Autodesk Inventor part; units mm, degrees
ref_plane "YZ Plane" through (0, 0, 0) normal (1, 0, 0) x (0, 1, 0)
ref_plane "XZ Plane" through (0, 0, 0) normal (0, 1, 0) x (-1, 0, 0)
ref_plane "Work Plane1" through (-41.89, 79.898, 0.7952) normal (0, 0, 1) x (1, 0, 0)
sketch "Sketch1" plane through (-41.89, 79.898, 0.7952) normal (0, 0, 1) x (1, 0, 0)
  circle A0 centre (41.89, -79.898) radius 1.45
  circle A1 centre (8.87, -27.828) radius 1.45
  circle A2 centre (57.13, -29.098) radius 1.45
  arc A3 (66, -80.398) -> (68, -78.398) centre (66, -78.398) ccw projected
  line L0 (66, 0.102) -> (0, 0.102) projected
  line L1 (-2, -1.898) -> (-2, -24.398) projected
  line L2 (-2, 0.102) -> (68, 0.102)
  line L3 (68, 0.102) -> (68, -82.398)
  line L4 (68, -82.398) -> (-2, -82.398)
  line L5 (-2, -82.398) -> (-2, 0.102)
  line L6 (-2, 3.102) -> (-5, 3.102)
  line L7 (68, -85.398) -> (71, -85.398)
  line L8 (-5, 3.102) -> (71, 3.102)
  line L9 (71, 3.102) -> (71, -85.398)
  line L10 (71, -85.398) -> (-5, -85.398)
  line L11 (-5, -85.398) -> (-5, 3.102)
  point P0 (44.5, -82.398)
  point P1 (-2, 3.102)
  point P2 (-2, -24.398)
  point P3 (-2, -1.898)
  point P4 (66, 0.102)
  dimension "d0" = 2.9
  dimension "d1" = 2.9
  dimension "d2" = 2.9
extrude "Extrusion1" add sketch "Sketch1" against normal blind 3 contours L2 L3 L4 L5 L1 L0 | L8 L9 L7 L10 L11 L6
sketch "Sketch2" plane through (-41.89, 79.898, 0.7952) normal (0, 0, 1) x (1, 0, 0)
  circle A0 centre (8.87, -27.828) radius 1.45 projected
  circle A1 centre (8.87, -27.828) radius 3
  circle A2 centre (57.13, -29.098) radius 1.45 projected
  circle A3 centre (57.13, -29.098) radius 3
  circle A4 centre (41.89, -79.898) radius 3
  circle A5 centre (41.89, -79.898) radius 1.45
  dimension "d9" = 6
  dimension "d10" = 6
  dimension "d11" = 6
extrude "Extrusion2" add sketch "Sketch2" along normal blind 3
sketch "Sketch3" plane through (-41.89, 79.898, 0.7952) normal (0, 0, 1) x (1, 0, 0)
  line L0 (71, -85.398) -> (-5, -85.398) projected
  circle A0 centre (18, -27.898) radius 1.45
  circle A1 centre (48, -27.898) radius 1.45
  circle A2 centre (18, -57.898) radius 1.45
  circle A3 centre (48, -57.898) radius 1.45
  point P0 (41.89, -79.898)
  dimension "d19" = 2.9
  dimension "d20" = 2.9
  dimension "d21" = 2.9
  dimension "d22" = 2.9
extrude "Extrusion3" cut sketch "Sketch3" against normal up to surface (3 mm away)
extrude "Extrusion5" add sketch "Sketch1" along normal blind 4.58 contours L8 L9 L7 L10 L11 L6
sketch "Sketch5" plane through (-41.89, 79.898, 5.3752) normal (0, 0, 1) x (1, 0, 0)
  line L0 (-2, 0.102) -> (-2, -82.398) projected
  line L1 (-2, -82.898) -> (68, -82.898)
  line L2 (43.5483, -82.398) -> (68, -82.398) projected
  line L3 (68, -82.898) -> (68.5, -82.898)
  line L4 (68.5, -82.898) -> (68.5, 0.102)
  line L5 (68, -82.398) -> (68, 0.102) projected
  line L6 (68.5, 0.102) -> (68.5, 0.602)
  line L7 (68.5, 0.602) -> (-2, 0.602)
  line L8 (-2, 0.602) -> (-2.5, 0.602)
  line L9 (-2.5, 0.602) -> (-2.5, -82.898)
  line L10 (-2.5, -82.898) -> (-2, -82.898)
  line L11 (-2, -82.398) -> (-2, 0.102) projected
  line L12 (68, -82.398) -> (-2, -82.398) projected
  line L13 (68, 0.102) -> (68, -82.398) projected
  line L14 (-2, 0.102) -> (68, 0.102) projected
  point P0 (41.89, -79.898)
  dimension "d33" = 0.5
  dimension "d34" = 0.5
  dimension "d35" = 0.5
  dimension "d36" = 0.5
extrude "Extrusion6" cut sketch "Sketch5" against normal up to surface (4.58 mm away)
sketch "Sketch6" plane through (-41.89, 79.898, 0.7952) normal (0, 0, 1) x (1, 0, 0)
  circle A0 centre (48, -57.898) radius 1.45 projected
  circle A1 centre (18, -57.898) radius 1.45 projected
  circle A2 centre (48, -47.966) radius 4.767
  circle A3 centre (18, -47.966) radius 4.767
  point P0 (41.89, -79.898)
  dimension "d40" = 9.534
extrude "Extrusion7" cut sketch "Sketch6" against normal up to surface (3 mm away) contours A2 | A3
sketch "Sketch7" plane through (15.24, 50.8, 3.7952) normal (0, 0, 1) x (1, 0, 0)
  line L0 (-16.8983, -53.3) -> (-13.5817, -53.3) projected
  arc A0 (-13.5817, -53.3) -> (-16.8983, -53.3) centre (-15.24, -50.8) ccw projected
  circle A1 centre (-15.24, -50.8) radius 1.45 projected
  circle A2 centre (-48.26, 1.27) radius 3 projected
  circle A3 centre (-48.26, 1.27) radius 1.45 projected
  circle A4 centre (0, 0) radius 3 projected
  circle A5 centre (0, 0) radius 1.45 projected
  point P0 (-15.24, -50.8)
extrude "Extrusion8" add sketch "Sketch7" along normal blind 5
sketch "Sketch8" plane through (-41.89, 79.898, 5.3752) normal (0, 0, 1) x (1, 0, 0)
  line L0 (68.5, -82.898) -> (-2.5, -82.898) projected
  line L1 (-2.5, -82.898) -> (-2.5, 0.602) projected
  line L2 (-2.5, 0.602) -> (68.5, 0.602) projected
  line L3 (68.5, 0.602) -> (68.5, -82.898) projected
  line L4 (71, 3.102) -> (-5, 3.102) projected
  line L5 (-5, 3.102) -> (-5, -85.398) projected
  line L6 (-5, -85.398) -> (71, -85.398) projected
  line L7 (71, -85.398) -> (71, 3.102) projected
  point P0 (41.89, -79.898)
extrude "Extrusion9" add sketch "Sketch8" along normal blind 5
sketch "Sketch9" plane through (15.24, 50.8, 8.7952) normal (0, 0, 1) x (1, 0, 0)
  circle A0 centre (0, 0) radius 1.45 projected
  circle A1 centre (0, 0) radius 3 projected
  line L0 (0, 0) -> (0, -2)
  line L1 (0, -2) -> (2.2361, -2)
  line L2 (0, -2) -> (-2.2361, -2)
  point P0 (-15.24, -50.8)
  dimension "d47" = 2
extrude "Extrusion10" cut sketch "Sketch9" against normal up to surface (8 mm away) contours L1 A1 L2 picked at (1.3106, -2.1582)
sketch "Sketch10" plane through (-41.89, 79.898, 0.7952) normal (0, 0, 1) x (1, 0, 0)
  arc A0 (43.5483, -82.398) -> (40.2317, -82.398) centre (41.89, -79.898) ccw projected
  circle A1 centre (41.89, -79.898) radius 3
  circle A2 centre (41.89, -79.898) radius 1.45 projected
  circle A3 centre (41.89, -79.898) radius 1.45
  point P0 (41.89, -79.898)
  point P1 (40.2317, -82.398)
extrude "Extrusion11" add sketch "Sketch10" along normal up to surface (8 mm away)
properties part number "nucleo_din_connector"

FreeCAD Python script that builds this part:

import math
import FreeCAD as App
import Part
import Sketcher
from FreeCAD import Vector
Q = App.Units.Quantity

doc = App.newDocument("Part")
body = doc.addObject("PartDesign::Body", "Body")

# Sketch on XY plane
sketch1 = body.newObject("Sketcher::SketchObject", "Sketch")
sketch1.AttachmentSupport = (doc.getObject("XY_Plane"), [""])
sketch1.MapMode = "FlatFace"
sketch1.AttachmentOffset = App.Placement(Vector(0, 0, 0.7952), App.Rotation())
sketch1.addGeometry(Part.LineSegment(Vector(29.1, 83, 0), Vector(-46.9, 83, 0)), False)
sketch1.addGeometry(Part.LineSegment(Vector(-46.9, 83, 0), Vector(-46.9, -5.5, 0)), False)
sketch1.addGeometry(Part.LineSegment(Vector(-46.9, -5.5, 0), Vector(29.1, -5.5, 0)), False)
sketch1.addGeometry(Part.LineSegment(Vector(29.1, -5.5, 0), Vector(29.1, 83, 0)), False)
sketch1.addGeometry(Part.Circle(Vector(0, 0, 0), Vector(0, 0, 1), 1.4), False)
sketch1.addGeometry(Part.Circle(Vector(-33, 52.1, 0), Vector(0, 0, 1), 1.4), False)
sketch1.addGeometry(Part.Circle(Vector(15.2, 50.8, 0), Vector(0, 0, 1), 1.4), False)
sketch1.addConstraint(Sketcher.Constraint("Coincident", 0, 2, 1, 1))
sketch1.addConstraint(Sketcher.Constraint("Coincident", 1, 2, 2, 1))
sketch1.addConstraint(Sketcher.Constraint("Coincident", 2, 2, 3, 1))
sketch1.addConstraint(Sketcher.Constraint("Coincident", 3, 2, 0, 1))
sketch1.addConstraint(Sketcher.Constraint("Horizontal", 0))
sketch1.addConstraint(Sketcher.Constraint("Vertical", 1))
sketch1.addConstraint(Sketcher.Constraint("Horizontal", 2))
sketch1.addConstraint(Sketcher.Constraint("Vertical", 3))
sketch1.addConstraint(Sketcher.Constraint("Coincident", 4, 3, -1, 1))
sketch1.addConstraint(Sketcher.Constraint("Equal", 4, 5))
sketch1.addConstraint(Sketcher.Constraint("Equal", 5, 6))
sketch1.addConstraint(Sketcher.Constraint("Diameter", 4, Q("2.9 mm")))
sketch1.addConstraint(Sketcher.Constraint("DistanceX", 0, 2, 0, 1, Q("76 mm")))
sketch1.addConstraint(Sketcher.Constraint("DistanceY", 1, 2, 1, 1, Q("88.5 mm")))
sketch1.addConstraint(Sketcher.Constraint("DistanceY", -1, 1, 0, 2, Q("83 mm")))
sketch1.addConstraint(Sketcher.Constraint("DistanceY", -1, 1, 6, 3, Q("50.8 mm")))
sketch1.addConstraint(Sketcher.Constraint("DistanceX", 5, 3, -1, 1, Q("33.02 mm")))
sketch1.addConstraint(Sketcher.Constraint("DistanceY", -1, 1, 5, 3, Q("52.07 mm")))
sketch1.addConstraint(Sketcher.Constraint("DistanceX", -1, 1, 6, 3, Q("15.24 mm")))
sketch1.addConstraint(Sketcher.Constraint("DistanceX", 0, 2, -1, 1, Q("46.89 mm")))
pad1 = body.newObject("PartDesign::Pad", "Pad")
pad1.Profile = sketch1
pad1.Length = 3
pad1.Reversed = True

# Sketch on XY plane
sketch2 = body.newObject("Sketcher::SketchObject", "Sketch001")
sketch2.AttachmentSupport = (doc.getObject("XY_Plane"), [""])
sketch2.MapMode = "FlatFace"
sketch2.AttachmentOffset = App.Placement(Vector(0, 0, 0.7952), App.Rotation())
sketch2.addGeometry(Part.Circle(Vector(-33, 52.1, 0), Vector(0, 0, 1), 3), False)
sketch2.addGeometry(Part.Circle(Vector(-33, 52.1, 0), Vector(0, 0, 1), 1.4), False)
sketch2.addGeometry(Part.Circle(Vector(15.2, 50.8, 0), Vector(0, 0, 1), 3), False)
sketch2.addGeometry(Part.Circle(Vector(15.2, 50.8, 0), Vector(0, 0, 1), 1.4), False)
sketch2.addGeometry(Part.Circle(Vector(0, 0, 0), Vector(0, 0, 1), 3), False)
sketch2.addGeometry(Part.Circle(Vector(0, 0, 0), Vector(0, 0, 1), 1.4), False)
sketch2.addConstraint(Sketcher.Constraint("Coincident", 4, 3, -1, 1))
sketch2.addConstraint(Sketcher.Constraint("Coincident", 5, 3, -1, 1))
sketch2.addConstraint(Sketcher.Constraint("Coincident", 1, 3, 0, 3))
sketch2.addConstraint(Sketcher.Constraint("Coincident", 3, 3, 2, 3))
sketch2.addConstraint(Sketcher.Constraint("Equal", 0, 2))
sketch2.addConstraint(Sketcher.Constraint("Equal", 1, 3))
sketch2.addConstraint(Sketcher.Constraint("Equal", 2, 4))
sketch2.addConstraint(Sketcher.Constraint("Equal", 3, 5))
sketch2.addConstraint(Sketcher.Constraint("Diameter", 0, Q("6 mm")))
sketch2.addConstraint(Sketcher.Constraint("Diameter", 1, Q("2.9 mm")))
sketch2.addConstraint(Sketcher.Constraint("DistanceY", -1, 1, 2, 3, Q("50.8 mm")))
sketch2.addConstraint(Sketcher.Constraint("DistanceX", 0, 3, -1, 1, Q("33.02 mm")))
sketch2.addConstraint(Sketcher.Constraint("DistanceY", -1, 1, 0, 3, Q("52.07 mm")))
sketch2.addConstraint(Sketcher.Constraint("DistanceX", -1, 1, 2, 3, Q("15.24 mm")))
pad2 = body.newObject("PartDesign::Pad", "Pad001")
pad2.Profile = sketch2
pad2.Length = 3

# Sketch on XY plane
sketch3 = body.newObject("Sketcher::SketchObject", "Sketch002")
sketch3.AttachmentSupport = (doc.getObject("XY_Plane"), [""])
sketch3.MapMode = "FlatFace"
sketch3.AttachmentOffset = App.Placement(Vector(0, 0, 0.7952), App.Rotation())
sketch3.addGeometry(Part.Circle(Vector(-23.9, 52, 0), Vector(0, 0, 1), 1.4), False)
sketch3.addGeometry(Part.Circle(Vector(6.1, 52, 0), Vector(0, 0, 1), 1.4), False)
sketch3.addGeometry(Part.Circle(Vector(-23.9, 22, 0), Vector(0, 0, 1), 1.4), False)
sketch3.addGeometry(Part.Circle(Vector(6.1, 22, 0), Vector(0, 0, 1), 1.4), False)
sketch3.addConstraint(Sketcher.Constraint("Equal", 0, 1))
sketch3.addConstraint(Sketcher.Constraint("Equal", 1, 2))
sketch3.addConstraint(Sketcher.Constraint("Equal", 2, 3))
sketch3.addConstraint(Sketcher.Constraint("Horizontal", 0, 3, 1, 3))
sketch3.addConstraint(Sketcher.Constraint("Horizontal", 2, 3, 3, 3))
sketch3.addConstraint(Sketcher.Constraint("Vertical", 0, 3, 2, 3))
sketch3.addConstraint(Sketcher.Constraint("Vertical", 1, 3, 3, 3))
sketch3.addConstraint(Sketcher.Constraint("Diameter", 0, Q("2.9 mm")))
sketch3.addConstraint(Sketcher.Constraint("DistanceY", -1, 1, 0, 3, Q("52 mm")))
sketch3.addConstraint(Sketcher.Constraint("DistanceY", -1, 1, 2, 3, Q("22 mm")))
sketch3.addConstraint(Sketcher.Constraint("DistanceX", 0, 3, 1, 3, Q("30 mm")))
sketch3.addConstraint(Sketcher.Constraint("DistanceX", 0, 3, -1, 1, Q("23.89 mm")))
pocket1 = body.newObject("PartDesign::Pocket", "Pocket")
pocket1.Profile = sketch3
pocket1.Length = 3

# Sketch on XY plane
sketch4 = body.newObject("Sketcher::SketchObject", "Sketch003")
sketch4.AttachmentSupport = (doc.getObject("XY_Plane"), [""])
sketch4.MapMode = "FlatFace"
sketch4.AttachmentOffset = App.Placement(Vector(0, 0, 0.7952), App.Rotation())
sketch4.addGeometry(Part.LineSegment(Vector(29, 83, 0), Vector(-47, 83, 0)), False)
sketch4.addGeometry(Part.LineSegment(Vector(-47, 83, 0), Vector(-47, -6, 0)), False)
sketch4.addGeometry(Part.LineSegment(Vector(-47, -6, 0), Vector(29, -6, 0)), False)
sketch4.addGeometry(Part.LineSegment(Vector(29, -6, 0), Vector(29, 83, 0)), False)
sketch4.addGeometry(Part.LineSegment(Vector(-44, 80, 0), Vector(26, 80, 0)), False)
sketch4.addGeometry(Part.LineSegment(Vector(26, 80, 0), Vector(26, -2, 0)), False)
sketch4.addGeometry(Part.LineSegment(Vector(26, -2, 0), Vector(-44, -2, 0)), False)
sketch4.addGeometry(Part.LineSegment(Vector(-44, -2, 0), Vector(-44, 80, 0)), False)
sketch4.addConstraint(Sketcher.Constraint("Coincident", 0, 2, 1, 1))
sketch4.addConstraint(Sketcher.Constraint("Coincident", 1, 2, 2, 1))
sketch4.addConstraint(Sketcher.Constraint("Coincident", 2, 2, 3, 1))
sketch4.addConstraint(Sketcher.Constraint("Coincident", 3, 2, 0, 1))
sketch4.addConstraint(Sketcher.Constraint("Coincident", 4, 2, 5, 1))
sketch4.addConstraint(Sketcher.Constraint("Coincident", 5, 2, 6, 1))
sketch4.addConstraint(Sketcher.Constraint("Coincident", 6, 2, 7, 1))
sketch4.addConstraint(Sketcher.Constraint("Coincident", 7, 2, 4, 1))
sketch4.addConstraint(Sketcher.Constraint("Horizontal", 0))
sketch4.addConstraint(Sketcher.Constraint("Vertical", 1))
sketch4.addConstraint(Sketcher.Constraint("Horizontal", 2))
sketch4.addConstraint(Sketcher.Constraint("Vertical", 3))
sketch4.addConstraint(Sketcher.Constraint("Horizontal", 4))
sketch4.addConstraint(Sketcher.Constraint("Vertical", 5))
sketch4.addConstraint(Sketcher.Constraint("Horizontal", 6))
sketch4.addConstraint(Sketcher.Constraint("Vertical", 7))
sketch4.addConstraint(Sketcher.Constraint("DistanceX", 0, 2, 0, 1, Q("76 mm")))
sketch4.addConstraint(Sketcher.Constraint("DistanceX", 4, 1, 4, 2, Q("70 mm")))
sketch4.addConstraint(Sketcher.Constraint("DistanceY", 1, 2, 1, 1, Q("88.5 mm")))
sketch4.addConstraint(Sketcher.Constraint("DistanceY", 5, 2, 5, 1, Q("82.5 mm")))
sketch4.addConstraint(Sketcher.Constraint("DistanceY", -1, 1, 0, 2, Q("83 mm")))
sketch4.addConstraint(Sketcher.Constraint("DistanceY", -1, 1, 4, 2, Q("80 mm")))
sketch4.addConstraint(Sketcher.Constraint("DistanceX", 4, 2, 3, 2, Q("3 mm")))
sketch4.addConstraint(Sketcher.Constraint("DistanceX", 0, 2, -1, 1, Q("46.89 mm")))
pad3 = body.newObject("PartDesign::Pad", "Pad002")
pad3.Profile = sketch4
pad3.Length = 4.58

# Sketch on XY plane
sketch5 = body.newObject("Sketcher::SketchObject", "Sketch004")
sketch5.AttachmentSupport = (doc.getObject("XY_Plane"), [""])
sketch5.MapMode = "FlatFace"
sketch5.AttachmentOffset = App.Placement(Vector(0, 0, 5.3752), App.Rotation())
sketch5.addGeometry(Part.LineSegment(Vector(-44, -3, 0), Vector(27, -3, 0)), False)
sketch5.addGeometry(Part.LineSegment(Vector(27, -3, 0), Vector(27, 80, 0)), False)
sketch5.addGeometry(Part.LineSegment(Vector(27, 80, 0), Vector(-44, 80, 0)), False)
sketch5.addGeometry(Part.LineSegment(Vector(-44, 80, 0), Vector(-44, -3, 0)), False)
sketch5.addGeometry(Part.LineSegment(Vector(-44, -2, 0), Vector(-44, 80, 0)), False)
sketch5.addGeometry(Part.LineSegment(Vector(-44, 80, 0), Vector(26, 80, 0)), False)
sketch5.addGeometry(Part.LineSegment(Vector(26, 80, 0), Vector(26, -2, 0)), False)
sketch5.addGeometry(Part.LineSegment(Vector(26, -2, 0), Vector(-44, -2, 0)), False)
sketch5.addConstraint(Sketcher.Constraint("Coincident", 0, 2, 1, 1))
sketch5.addConstraint(Sketcher.Constraint("Coincident", 1, 2, 2, 1))
sketch5.addConstraint(Sketcher.Constraint("Coincident", 2, 2, 3, 1))
sketch5.addConstraint(Sketcher.Constraint("Coincident", 3, 2, 0, 1))
sketch5.addConstraint(Sketcher.Constraint("Coincident", 4, 2, 5, 1))
sketch5.addConstraint(Sketcher.Constraint("Coincident", 5, 2, 6, 1))
sketch5.addConstraint(Sketcher.Constraint("Coincident", 6, 2, 7, 1))
sketch5.addConstraint(Sketcher.Constraint("Coincident", 7, 2, 4, 1))
sketch5.addConstraint(Sketcher.Constraint("Horizontal", 0))
sketch5.addConstraint(Sketcher.Constraint("Vertical", 1))
sketch5.addConstraint(Sketcher.Constraint("Horizontal", 2))
sketch5.addConstraint(Sketcher.Constraint("Vertical", 3))
sketch5.addConstraint(Sketcher.Constraint("Vertical", 4))
sketch5.addConstraint(Sketcher.Constraint("Horizontal", 5))
sketch5.addConstraint(Sketcher.Constraint("Vertical", 6))
sketch5.addConstraint(Sketcher.Constraint("Horizontal", 7))
sketch5.addConstraint(Sketcher.Constraint("DistanceX", 2, 2, 4, 2, Q("0.5 mm")))
sketch5.addConstraint(Sketcher.Constraint("DistanceY", 4, 2, 2, 2, Q("0.5 mm")))
sketch5.addConstraint(Sketcher.Constraint("DistanceX", 5, 2, 1, 2, Q("0.5 mm")))
sketch5.addConstraint(Sketcher.Constraint("DistanceY", 0, 2, 6, 2, Q("0.5 mm")))
sketch5.addConstraint(Sketcher.Constraint("DistanceX", 0, 1, 0, 2, Q("71 mm")))
sketch5.addConstraint(Sketcher.Constraint("DistanceY", 1, 1, 1, 2, Q("83.5 mm")))
sketch5.addConstraint(Sketcher.Constraint("DistanceY", 0, 2, -1, 1, Q("3 mm")))
sketch5.addConstraint(Sketcher.Constraint("DistanceX", -1, 1, 0, 2, Q("26.61 mm")))
pocket2 = body.newObject("PartDesign::Pocket", "Pocket001")
pocket2.Profile = sketch5
pocket2.Length = 4.58

# Sketch on XY plane
sketch6 = body.newObject("Sketcher::SketchObject", "Sketch005")
sketch6.AttachmentSupport = (doc.getObject("XY_Plane"), [""])
sketch6.MapMode = "FlatFace"
sketch6.AttachmentOffset = App.Placement(Vector(0, 0, 0.7952), App.Rotation())
sketch6.addGeometry(Part.Circle(Vector(6.1, 31.9, 0), Vector(0, 0, 1), 4.8), False)
sketch6.addGeometry(Part.Circle(Vector(-23.9, 31.9, 0), Vector(0, 0, 1), 4.8), False)
sketch6.addConstraint(Sketcher.Constraint("Equal", 0, 1))
sketch6.addConstraint(Sketcher.Constraint("Horizontal", 0, 3, 1, 3))
sketch6.addConstraint(Sketcher.Constraint("Diameter", 0, Q("9.534 mm")))
sketch6.addConstraint(Sketcher.Constraint("DistanceX", 1, 3, 0, 3, Q("30 mm")))
sketch6.addConstraint(Sketcher.Constraint("DistanceX", -1, 1, 0, 3, Q("6.11 mm")))
sketch6.addConstraint(Sketcher.Constraint("DistanceY", -1, 1, 0, 3, Q("31.932 mm")))
pocket3 = body.newObject("PartDesign::Pocket", "Pocket002")
pocket3.Profile = sketch6
pocket3.Length = 3

# Sketch on XY plane
sketch7 = body.newObject("Sketcher::SketchObject", "Sketch006")
sketch7.AttachmentSupport = (doc.getObject("XY_Plane"), [""])
sketch7.MapMode = "FlatFace"
sketch7.AttachmentOffset = App.Placement(Vector(0, 0, 3.7952), App.Rotation())
sketch7.addGeometry(Part.ArcOfCircle(Part.Circle(Vector(0, 0, 0), Vector(0, 0, 1), 3), math.radians(-56), math.radians(236)), False)
sketch7.addGeometry(Part.LineSegment(Vector(-1.7, -2.5, 0), Vector(1.7, -2.5, 0)), False)
sketch7.addGeometry(Part.Circle(Vector(0, 0, 0), Vector(0, 0, 1), 1.4), False)
sketch7.addGeometry(Part.Circle(Vector(-33, 52.1, 0), Vector(0, 0, 1), 3), False)
sketch7.addGeometry(Part.Circle(Vector(-33, 52.1, 0), Vector(0, 0, 1), 1.4), False)
sketch7.addGeometry(Part.Circle(Vector(15.2, 50.8, 0), Vector(0, 0, 1), 3), False)
sketch7.addGeometry(Part.Circle(Vector(15.2, 50.8, 0), Vector(0, 0, 1), 1.4), False)
sketch7.addConstraint(Sketcher.Constraint("Coincident", 0, 1, 1, 2))
sketch7.addConstraint(Sketcher.Constraint("Coincident", 1, 1, 0, 2))
sketch7.addConstraint(Sketcher.Constraint("Horizontal", 1))
sketch7.addConstraint(Sketcher.Constraint("Coincident", 0, 3, -1, 1))
sketch7.addConstraint(Sketcher.Constraint("Coincident", 2, 3, -1, 1))
sketch7.addConstraint(Sketcher.Constraint("Coincident", 4, 3, 3, 3))
sketch7.addConstraint(Sketcher.Constraint("Coincident", 6, 3, 5, 3))
sketch7.addConstraint(Sketcher.Constraint("Equal", 0, 3))
sketch7.addConstraint(Sketcher.Constraint("Equal", 2, 4))
sketch7.addConstraint(Sketcher.Constraint("Equal", 3, 5))
sketch7.addConstraint(Sketcher.Constraint("Equal", 4, 6))
sketch7.addConstraint(Sketcher.Constraint("Diameter", 3, Q("6 mm")))
sketch7.addConstraint(Sketcher.Constraint("Diameter", 2, Q("2.9 mm")))
sketch7.addConstraint(Sketcher.Constraint("DistanceY", -1, 1, 5, 3, Q("50.8 mm")))
sketch7.addConstraint(Sketcher.Constraint("DistanceY", 0, 1, -1, 1, Q("2.5 mm")))
sketch7.addConstraint(Sketcher.Constraint("DistanceX", 3, 3, -1, 1, Q("33.02 mm")))
sketch7.addConstraint(Sketcher.Constraint("DistanceY", -1, 1, 3, 3, Q("52.07 mm")))
sketch7.addConstraint(Sketcher.Constraint("DistanceX", -1, 1, 5, 3, Q("15.24 mm")))
pad4 = body.newObject("PartDesign::Pad", "Pad003")
pad4.Profile = sketch7
pad4.Length = 5

# Sketch on XY plane
sketch8 = body.newObject("Sketcher::SketchObject", "Sketch007")
sketch8.AttachmentSupport = (doc.getObject("XY_Plane"), [""])
sketch8.MapMode = "FlatFace"
sketch8.AttachmentOffset = App.Placement(Vector(0, 0, 5.3752), App.Rotation())
sketch8.addGeometry(Part.LineSegment(Vector(29, -6, 0), Vector(29, 83, 0)), False)
sketch8.addGeometry(Part.LineSegment(Vector(29, 83, 0), Vector(-47, 83, 0)), False)
sketch8.addGeometry(Part.LineSegment(Vector(-47, 83, 0), Vector(-47, -6, 0)), False)
sketch8.addGeometry(Part.LineSegment(Vector(-47, -6, 0), Vector(29, -6, 0)), False)
sketch8.addGeometry(Part.LineSegment(Vector(27, 80, 0), Vector(27, -3, 0)), False)
sketch8.addGeometry(Part.LineSegment(Vector(27, -3, 0), Vector(-44, -3, 0)), False)
sketch8.addGeometry(Part.LineSegment(Vector(-44, -3, 0), Vector(-44, 80, 0)), False)
sketch8.addGeometry(Part.LineSegment(Vector(-44, 80, 0), Vector(27, 80, 0)), False)
sketch8.addConstraint(Sketcher.Constraint("Coincident", 0, 2, 1, 1))
sketch8.addConstraint(Sketcher.Constraint("Coincident", 1, 2, 2, 1))
sketch8.addConstraint(Sketcher.Constraint("Coincident", 2, 2, 3, 1))
sketch8.addConstraint(Sketcher.Constraint("Coincident", 3, 2, 0, 1))
sketch8.addConstraint(Sketcher.Constraint("Coincident", 4, 2, 5, 1))
sketch8.addConstraint(Sketcher.Constraint("Coincident", 5, 2, 6, 1))
sketch8.addConstraint(Sketcher.Constraint("Coincident", 6, 2, 7, 1))
sketch8.addConstraint(Sketcher.Constraint("Coincident", 7, 2, 4, 1))
sketch8.addConstraint(Sketcher.Constraint("Vertical", 0))
sketch8.addConstraint(Sketcher.Constraint("Horizontal", 1))
sketch8.addConstraint(Sketcher.Constraint("Vertical", 2))
sketch8.addConstraint(Sketcher.Constraint("Horizontal", 3))
sketch8.addConstraint(Sketcher.Constraint("Vertical", 4))
sketch8.addConstraint(Sketcher.Constraint("Horizontal", 5))
sketch8.addConstraint(Sketcher.Constraint("Vertical", 6))
sketch8.addConstraint(Sketcher.Constraint("Horizontal", 7))
sketch8.addConstraint(Sketcher.Constraint("DistanceX", 1, 2, 1, 1, Q("76 mm")))
sketch8.addConstraint(Sketcher.Constraint("DistanceX", 5, 2, 5, 1, Q("71 mm")))
sketch8.addConstraint(Sketcher.Constraint("DistanceY", 0, 1, 0, 2, Q("88.5 mm")))
sketch8.addConstraint(Sketcher.Constraint("DistanceY", 4, 2, 4, 1, Q("83.5 mm")))
sketch8.addConstraint(Sketcher.Constraint("DistanceY", -1, 1, 0, 2, Q("83 mm")))
sketch8.addConstraint(Sketcher.Constraint("DistanceY", 4, 2, -1, 1, Q("3 mm")))
sketch8.addConstraint(Sketcher.Constraint("DistanceX", 4, 2, 3, 2, Q("2.5 mm")))
sketch8.addConstraint(Sketcher.Constraint("DistanceX", -1, 1, 0, 2, Q("29.11 mm")))
pad5 = body.newObject("PartDesign::Pad", "Pad004")
pad5.Profile = sketch8
pad5.Length = 5

# Sketch on XY plane
sketch9 = body.newObject("Sketcher::SketchObject", "Sketch008")
sketch9.AttachmentSupport = (doc.getObject("XY_Plane"), [""])
sketch9.MapMode = "FlatFace"
sketch9.AttachmentOffset = App.Placement(Vector(0, 0, 8.7952), App.Rotation())
sketch9.addGeometry(Part.LineSegment(Vector(17.5, 48.8, 0), Vector(13, 48.8, 0)), False)
sketch9.addGeometry(Part.ArcOfCircle(Part.Circle(Vector(15.2, 50.8, 0), Vector(0, 0, 1), 3), math.radians(-138), math.radians(-42)), False)
sketch9.addConstraint(Sketcher.Constraint("Coincident", 0, 1, 1, 2))
sketch9.addConstraint(Sketcher.Constraint("Coincident", 1, 1, 0, 2))
sketch9.addConstraint(Sketcher.Constraint("Horizontal", 0))
sketch9.addConstraint(Sketcher.Constraint("Radius", 1, Q("3 mm")))
sketch9.addConstraint(Sketcher.Constraint("DistanceY", 0, 1, 1, 3, Q("2 mm")))
sketch9.addConstraint(Sketcher.Constraint("DistanceY", -1, 1, 1, 3, Q("50.8 mm")))
sketch9.addConstraint(Sketcher.Constraint("DistanceX", -1, 1, 1, 3, Q("15.24 mm")))
pocket4 = body.newObject("PartDesign::Pocket", "Pocket003")
pocket4.Profile = sketch9
pocket4.Length = 8

# Sketch on XY plane
sketch10 = body.newObject("Sketcher::SketchObject", "Sketch009")
sketch10.AttachmentSupport = (doc.getObject("XY_Plane"), [""])
sketch10.MapMode = "FlatFace"
sketch10.AttachmentOffset = App.Placement(Vector(0, 0, 0.7952), App.Rotation())
sketch10.addGeometry(Part.Circle(Vector(0, 0, 0), Vector(0, 0, 1), 3), False)
sketch10.addGeometry(Part.Circle(Vector(0, 0, 0), Vector(0, 0, 1), 1.4), False)
sketch10.addConstraint(Sketcher.Constraint("Coincident", 0, 3, -1, 1))
sketch10.addConstraint(Sketcher.Constraint("Coincident", 1, 3, -1, 1))
sketch10.addConstraint(Sketcher.Constraint("Diameter", 0, Q("6 mm")))
sketch10.addConstraint(Sketcher.Constraint("Diameter", 1, Q("2.9 mm")))
pad6 = body.newObject("PartDesign::Pad", "Pad005")
pad6.Profile = sketch10
pad6.Length = 8

doc.recompute()
